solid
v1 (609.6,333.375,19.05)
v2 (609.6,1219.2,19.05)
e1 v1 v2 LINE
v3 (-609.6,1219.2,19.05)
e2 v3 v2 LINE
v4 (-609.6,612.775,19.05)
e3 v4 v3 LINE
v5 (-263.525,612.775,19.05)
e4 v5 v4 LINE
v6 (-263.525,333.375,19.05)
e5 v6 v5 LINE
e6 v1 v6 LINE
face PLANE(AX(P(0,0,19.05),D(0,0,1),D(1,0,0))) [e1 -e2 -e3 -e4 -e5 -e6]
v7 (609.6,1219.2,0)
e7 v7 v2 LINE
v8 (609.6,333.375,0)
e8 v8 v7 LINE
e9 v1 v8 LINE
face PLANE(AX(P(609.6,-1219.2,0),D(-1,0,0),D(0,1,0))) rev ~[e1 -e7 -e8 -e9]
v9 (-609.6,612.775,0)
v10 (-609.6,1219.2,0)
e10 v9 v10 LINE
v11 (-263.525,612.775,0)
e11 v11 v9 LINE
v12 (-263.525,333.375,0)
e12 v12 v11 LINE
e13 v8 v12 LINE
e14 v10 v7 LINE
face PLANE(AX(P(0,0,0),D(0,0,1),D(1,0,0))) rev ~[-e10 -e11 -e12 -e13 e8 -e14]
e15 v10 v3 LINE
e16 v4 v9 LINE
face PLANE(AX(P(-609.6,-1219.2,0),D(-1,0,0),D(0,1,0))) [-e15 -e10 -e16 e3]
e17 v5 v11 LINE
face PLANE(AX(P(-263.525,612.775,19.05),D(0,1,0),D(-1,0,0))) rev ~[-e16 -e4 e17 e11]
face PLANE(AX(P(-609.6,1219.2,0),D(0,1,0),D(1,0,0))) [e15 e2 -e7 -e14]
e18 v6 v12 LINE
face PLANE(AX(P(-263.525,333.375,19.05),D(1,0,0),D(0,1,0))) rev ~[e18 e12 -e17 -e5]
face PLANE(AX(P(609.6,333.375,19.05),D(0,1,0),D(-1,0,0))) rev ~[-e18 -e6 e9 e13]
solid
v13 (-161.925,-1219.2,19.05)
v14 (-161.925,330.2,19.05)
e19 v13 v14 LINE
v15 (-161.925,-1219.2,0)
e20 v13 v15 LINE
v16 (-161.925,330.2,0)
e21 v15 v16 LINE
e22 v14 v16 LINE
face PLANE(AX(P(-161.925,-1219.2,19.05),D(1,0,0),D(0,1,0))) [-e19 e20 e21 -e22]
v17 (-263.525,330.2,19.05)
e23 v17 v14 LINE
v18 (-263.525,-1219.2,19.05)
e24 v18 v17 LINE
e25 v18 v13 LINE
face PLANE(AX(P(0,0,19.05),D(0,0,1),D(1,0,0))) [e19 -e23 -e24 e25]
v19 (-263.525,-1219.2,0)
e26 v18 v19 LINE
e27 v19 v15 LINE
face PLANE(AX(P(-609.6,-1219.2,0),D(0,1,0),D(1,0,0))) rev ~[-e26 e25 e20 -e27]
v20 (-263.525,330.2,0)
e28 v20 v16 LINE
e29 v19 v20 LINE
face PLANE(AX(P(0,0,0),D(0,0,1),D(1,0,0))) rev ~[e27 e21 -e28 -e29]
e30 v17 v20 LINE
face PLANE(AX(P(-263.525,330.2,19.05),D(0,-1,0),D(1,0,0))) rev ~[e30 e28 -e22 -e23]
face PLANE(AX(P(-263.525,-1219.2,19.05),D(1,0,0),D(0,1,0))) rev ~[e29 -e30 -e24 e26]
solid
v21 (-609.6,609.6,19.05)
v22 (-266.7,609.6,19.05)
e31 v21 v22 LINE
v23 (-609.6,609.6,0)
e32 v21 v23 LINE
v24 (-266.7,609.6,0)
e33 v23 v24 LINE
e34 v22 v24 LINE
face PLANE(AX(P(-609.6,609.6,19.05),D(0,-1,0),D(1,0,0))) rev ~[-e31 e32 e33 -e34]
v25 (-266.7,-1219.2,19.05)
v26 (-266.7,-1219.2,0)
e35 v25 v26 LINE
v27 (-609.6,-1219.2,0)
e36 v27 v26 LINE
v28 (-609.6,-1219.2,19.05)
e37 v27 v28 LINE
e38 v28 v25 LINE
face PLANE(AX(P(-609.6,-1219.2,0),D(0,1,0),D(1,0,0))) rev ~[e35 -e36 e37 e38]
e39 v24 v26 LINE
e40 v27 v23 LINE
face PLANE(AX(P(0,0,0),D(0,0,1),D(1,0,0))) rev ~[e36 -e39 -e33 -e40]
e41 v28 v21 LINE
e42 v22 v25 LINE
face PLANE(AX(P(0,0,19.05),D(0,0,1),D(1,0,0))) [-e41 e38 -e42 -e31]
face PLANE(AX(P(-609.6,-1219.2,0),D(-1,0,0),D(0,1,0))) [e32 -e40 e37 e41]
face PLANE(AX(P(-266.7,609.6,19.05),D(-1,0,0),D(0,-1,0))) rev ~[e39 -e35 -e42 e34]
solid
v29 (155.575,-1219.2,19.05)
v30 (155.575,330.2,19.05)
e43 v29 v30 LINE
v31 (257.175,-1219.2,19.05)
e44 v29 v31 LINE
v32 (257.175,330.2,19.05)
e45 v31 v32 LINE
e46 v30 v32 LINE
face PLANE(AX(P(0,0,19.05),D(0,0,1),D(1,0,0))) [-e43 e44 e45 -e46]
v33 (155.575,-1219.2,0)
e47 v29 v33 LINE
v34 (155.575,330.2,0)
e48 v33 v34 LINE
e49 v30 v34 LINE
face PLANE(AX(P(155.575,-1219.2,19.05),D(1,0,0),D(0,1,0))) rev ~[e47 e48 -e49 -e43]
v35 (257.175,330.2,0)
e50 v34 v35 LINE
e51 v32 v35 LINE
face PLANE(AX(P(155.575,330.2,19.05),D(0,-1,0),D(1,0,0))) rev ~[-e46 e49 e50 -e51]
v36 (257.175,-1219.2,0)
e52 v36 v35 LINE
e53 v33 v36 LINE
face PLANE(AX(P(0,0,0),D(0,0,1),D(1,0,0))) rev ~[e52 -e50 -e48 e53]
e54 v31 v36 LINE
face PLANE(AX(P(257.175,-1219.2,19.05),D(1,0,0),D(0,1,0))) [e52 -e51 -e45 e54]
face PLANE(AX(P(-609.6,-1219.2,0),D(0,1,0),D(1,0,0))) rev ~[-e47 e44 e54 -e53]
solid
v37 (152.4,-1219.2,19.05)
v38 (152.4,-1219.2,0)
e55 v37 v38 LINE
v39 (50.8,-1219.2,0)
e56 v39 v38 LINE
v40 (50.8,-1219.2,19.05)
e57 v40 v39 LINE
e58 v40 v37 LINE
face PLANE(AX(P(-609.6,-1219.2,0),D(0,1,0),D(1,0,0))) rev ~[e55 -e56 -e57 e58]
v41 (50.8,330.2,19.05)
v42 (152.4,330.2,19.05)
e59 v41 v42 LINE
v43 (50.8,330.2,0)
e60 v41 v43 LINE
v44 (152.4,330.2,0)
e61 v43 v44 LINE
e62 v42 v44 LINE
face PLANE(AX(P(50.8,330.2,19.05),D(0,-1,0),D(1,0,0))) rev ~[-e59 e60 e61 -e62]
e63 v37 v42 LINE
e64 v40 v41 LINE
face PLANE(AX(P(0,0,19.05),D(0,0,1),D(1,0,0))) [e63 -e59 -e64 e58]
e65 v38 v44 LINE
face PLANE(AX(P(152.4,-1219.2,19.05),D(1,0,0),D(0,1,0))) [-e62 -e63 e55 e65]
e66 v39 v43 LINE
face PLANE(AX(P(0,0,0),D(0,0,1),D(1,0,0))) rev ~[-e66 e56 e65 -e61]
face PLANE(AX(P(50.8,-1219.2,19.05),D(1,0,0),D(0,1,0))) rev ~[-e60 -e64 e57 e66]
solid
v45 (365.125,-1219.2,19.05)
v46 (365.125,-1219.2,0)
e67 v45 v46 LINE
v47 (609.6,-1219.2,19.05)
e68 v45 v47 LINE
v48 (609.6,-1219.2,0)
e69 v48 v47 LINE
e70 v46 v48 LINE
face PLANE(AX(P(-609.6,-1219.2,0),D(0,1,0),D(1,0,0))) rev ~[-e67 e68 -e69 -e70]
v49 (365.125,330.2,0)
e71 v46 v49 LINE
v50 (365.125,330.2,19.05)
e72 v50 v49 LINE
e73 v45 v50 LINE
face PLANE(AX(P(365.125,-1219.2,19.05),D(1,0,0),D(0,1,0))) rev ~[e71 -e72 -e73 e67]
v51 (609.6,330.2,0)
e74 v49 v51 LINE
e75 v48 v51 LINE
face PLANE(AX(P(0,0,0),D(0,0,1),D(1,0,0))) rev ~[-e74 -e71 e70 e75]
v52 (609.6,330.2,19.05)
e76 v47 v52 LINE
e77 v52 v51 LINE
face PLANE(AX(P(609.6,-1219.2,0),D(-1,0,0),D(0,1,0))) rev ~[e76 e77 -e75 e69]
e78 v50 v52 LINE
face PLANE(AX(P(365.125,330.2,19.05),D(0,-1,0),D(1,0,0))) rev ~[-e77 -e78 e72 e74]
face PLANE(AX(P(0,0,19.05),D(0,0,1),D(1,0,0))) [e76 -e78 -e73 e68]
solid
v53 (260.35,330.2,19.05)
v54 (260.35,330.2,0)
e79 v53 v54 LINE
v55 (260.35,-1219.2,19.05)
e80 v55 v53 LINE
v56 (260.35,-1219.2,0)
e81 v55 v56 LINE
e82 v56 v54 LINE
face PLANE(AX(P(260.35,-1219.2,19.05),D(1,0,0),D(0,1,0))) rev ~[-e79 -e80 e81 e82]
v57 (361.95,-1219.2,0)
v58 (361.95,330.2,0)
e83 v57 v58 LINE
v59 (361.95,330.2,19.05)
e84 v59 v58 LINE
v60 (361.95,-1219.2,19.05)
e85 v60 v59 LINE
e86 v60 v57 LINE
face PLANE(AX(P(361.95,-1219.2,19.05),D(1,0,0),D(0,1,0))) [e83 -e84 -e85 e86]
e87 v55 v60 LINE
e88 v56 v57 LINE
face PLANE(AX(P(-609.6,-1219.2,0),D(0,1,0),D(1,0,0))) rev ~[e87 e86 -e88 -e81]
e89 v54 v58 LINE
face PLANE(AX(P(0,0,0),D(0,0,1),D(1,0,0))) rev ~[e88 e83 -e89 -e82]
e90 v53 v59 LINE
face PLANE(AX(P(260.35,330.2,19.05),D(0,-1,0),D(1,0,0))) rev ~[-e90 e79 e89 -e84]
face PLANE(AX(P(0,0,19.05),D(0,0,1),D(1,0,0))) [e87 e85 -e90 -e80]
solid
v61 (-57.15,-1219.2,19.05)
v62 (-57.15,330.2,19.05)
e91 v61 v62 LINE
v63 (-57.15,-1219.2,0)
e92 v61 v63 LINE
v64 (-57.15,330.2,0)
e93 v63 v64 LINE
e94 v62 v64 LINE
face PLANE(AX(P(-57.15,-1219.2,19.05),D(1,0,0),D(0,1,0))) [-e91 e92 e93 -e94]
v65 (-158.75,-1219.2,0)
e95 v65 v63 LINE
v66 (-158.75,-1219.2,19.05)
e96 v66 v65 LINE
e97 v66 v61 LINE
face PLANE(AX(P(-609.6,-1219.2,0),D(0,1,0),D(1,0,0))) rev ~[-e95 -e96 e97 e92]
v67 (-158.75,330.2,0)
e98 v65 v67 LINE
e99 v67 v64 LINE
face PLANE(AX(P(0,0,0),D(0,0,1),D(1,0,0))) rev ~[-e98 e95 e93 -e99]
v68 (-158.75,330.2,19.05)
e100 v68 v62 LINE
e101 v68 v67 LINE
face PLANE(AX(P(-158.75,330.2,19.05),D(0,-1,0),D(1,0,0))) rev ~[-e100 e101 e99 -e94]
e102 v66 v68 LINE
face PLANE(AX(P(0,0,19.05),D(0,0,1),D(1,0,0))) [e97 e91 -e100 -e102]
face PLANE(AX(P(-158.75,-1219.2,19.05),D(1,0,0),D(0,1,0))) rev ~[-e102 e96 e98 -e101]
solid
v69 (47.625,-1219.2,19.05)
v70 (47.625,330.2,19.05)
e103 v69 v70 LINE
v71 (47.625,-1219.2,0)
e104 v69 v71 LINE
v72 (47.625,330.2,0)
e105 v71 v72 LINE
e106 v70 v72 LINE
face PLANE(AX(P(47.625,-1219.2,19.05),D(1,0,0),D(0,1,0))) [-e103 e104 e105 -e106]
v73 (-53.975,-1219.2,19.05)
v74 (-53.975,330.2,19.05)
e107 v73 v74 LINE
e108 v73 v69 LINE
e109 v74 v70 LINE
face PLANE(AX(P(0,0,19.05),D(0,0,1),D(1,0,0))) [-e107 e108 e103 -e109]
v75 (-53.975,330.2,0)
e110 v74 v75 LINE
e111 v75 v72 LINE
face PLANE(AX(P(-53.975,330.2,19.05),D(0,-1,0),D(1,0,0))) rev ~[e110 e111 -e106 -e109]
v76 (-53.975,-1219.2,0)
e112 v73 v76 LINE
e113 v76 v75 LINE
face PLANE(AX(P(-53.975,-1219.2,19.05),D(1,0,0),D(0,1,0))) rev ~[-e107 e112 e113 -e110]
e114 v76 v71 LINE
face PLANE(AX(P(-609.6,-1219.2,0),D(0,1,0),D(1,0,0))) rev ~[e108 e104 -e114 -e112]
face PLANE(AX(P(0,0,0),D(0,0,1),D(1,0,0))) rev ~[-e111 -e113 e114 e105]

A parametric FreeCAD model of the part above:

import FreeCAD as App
import Part
import Sketcher

V = App.Vector
Q = App.Units.Quantity

doc = App.newDocument("Part")
params = doc.addObject("Spreadsheet::Sheet", "Params")
for row, (alias, value) in enumerate([
    ("sketch1_width", "48 in"),
    ("sketch1_height", "96 in"),
    ("pad1_length", "0.75 in"),
    ("sketch2_width", "4 in"),
    ("sketch2_height", "72 in"),
    ("sketch2_height2", "61 in"),
    ("sketch2_width2", "13.5 in"),
], start=1):
    params.set(f"A{row}", alias)
    params.set(f"B{row}", "=" + value)
    params.setAlias(f"B{row}", alias)

body = doc.addObject("PartDesign::Body", "Body")
body.AllowCompound = True

# Sketch on XY plane
sketch1 = body.newObject("Sketcher::SketchObject", "Sketch")
sketch1.AttachmentSupport = (doc.getObject("XY_Plane"), [""])
sketch1.MapMode = "FlatFace"
sketch1.addGeometry(Part.LineSegment(V(-610, 1219, 0), V(-610, -1219, 0)), False)
sketch1.addGeometry(Part.LineSegment(V(-610, -1219, 0), V(610, -1219, 0)), False)
sketch1.addGeometry(Part.LineSegment(V(610, -1219, 0), V(610, 1219, 0)), False)
sketch1.addGeometry(Part.LineSegment(V(610, 1219, 0), V(-610, 1219, 0)), False)
sketch1.addConstraint(Sketcher.Constraint("Coincident", 0, 2, 1, 1))
sketch1.addConstraint(Sketcher.Constraint("Coincident", 1, 2, 2, 1))
sketch1.addConstraint(Sketcher.Constraint("Coincident", 2, 2, 3, 1))
sketch1.addConstraint(Sketcher.Constraint("Coincident", 3, 2, 0, 1))
sketch1.addConstraint(Sketcher.Constraint("Vertical", 0))
sketch1.addConstraint(Sketcher.Constraint("Horizontal", 1))
sketch1.addConstraint(Sketcher.Constraint("Vertical", 2))
sketch1.addConstraint(Sketcher.Constraint("Horizontal", 3))
sketch1.addConstraint(Sketcher.Constraint("Symmetric", 0, 2, 2, 2, -1, 1))
sketch1.addConstraint(Sketcher.Constraint("DistanceX", 1, 1, 1, 2, Q("48 in")))
sketch1.addConstraint(Sketcher.Constraint("DistanceY", 0, 2, 0, 1, Q("96 in")))
sketch1.setExpression("Constraints[9]", "Params.sketch1_width")
sketch1.setExpression("Constraints[10]", "Params.sketch1_height")
pad1 = body.newObject("PartDesign::Pad", "Pad")
pad1.Profile = sketch1
pad1.setExpression("Length", "Params.pad1_length")

# Sketch on XY plane
sketch2 = body.newObject("Sketcher::SketchObject", "Sketch001")
sketch2.AttachmentSupport = (doc.getObject("XY_Plane"), [""])
sketch2.MapMode = "FlatFace"
sketch2.AttachmentOffset = App.Placement(V(0, 0, 0.75 * 25.4), App.Rotation())
sketch2.addGeometry(Part.LineSegment(V(-266.7, 609.6, 0), V(-266.7, -1219.2, 0)), False)
sketch2.addGeometry(Part.LineSegment(V(-266.7, -1219.2, 0), V(-263.5, -1219.2, 0)), False)
sketch2.addGeometry(Part.LineSegment(V(-263.5, -1219.2, 0), V(-263.5, 330.2, 0)), False)
sketch2.addGeometry(Part.LineSegment(V(-263.5, 330.2, 0), V(-161.9, 330.2, 0)), False)
sketch2.addGeometry(Part.LineSegment(V(-161.9, 330.2, 0), V(-161.9, -1219.2, 0)), False)
sketch2.addGeometry(Part.LineSegment(V(-161.9, -1219.2, 0), V(-158.8, -1219.2, 0)), False)
sketch2.addGeometry(Part.LineSegment(V(-158.8, -1219.2, 0), V(-158.8, 330.2, 0)), False)
sketch2.addGeometry(Part.LineSegment(V(-158.8, 330.2, 0), V(-57.1, 330.2, 0)), False)
sketch2.addGeometry(Part.LineSegment(V(-57.1, 330.2, 0), V(-57.1, -1219.2, 0)), False)
sketch2.addGeometry(Part.LineSegment(V(-57.1, -1219.2, 0), V(-54, -1219.2, 0)), False)
sketch2.addGeometry(Part.LineSegment(V(-54, -1219.2, 0), V(-54, 330.2, 0)), False)
sketch2.addGeometry(Part.LineSegment(V(-54, 330.2, 0), V(47.6, 330.2, 0)), False)
sketch2.addGeometry(Part.LineSegment(V(47.6, 330.2, 0), V(47.6, -1219.2, 0)), False)
sketch2.addGeometry(Part.LineSegment(V(47.6, -1219.2, 0), V(50.8, -1219.2, 0)), False)
sketch2.addGeometry(Part.LineSegment(V(50.8, -1219.2, 0), V(50.8, 330.2, 0)), False)
sketch2.addGeometry(Part.LineSegment(V(50.8, 330.2, 0), V(152.4, 330.2, 0)), False)
sketch2.addGeometry(Part.LineSegment(V(152.4, 330.2, 0), V(152.4, -1219.2, 0)), False)
sketch2.addGeometry(Part.LineSegment(V(152.4, -1219.2, 0), V(155.6, -1219.2, 0)), False)
sketch2.addGeometry(Part.LineSegment(V(155.6, -1219.2, 0), V(155.6, 330.2, 0)), False)
sketch2.addGeometry(Part.LineSegment(V(155.6, 330.2, 0), V(257.2, 330.2, 0)), False)
sketch2.addGeometry(Part.LineSegment(V(257.2, 330.2, 0), V(257.2, -1219.2, 0)), False)
sketch2.addGeometry(Part.LineSegment(V(257.2, -1219.2, 0), V(260.4, -1219.2, 0)), False)
sketch2.addGeometry(Part.LineSegment(V(260.4, -1219.2, 0), V(260.4, 330.2, 0)), False)
sketch2.addGeometry(Part.LineSegment(V(260.4, 330.2, 0), V(361.9, 330.2, 0)), False)
sketch2.addGeometry(Part.LineSegment(V(361.9, 330.2, 0), V(361.9, -1219.2, 0)), False)
sketch2.addGeometry(Part.LineSegment(V(361.9, -1219.2, 0), V(365.1, -1219.2, 0)), False)
sketch2.addGeometry(Part.LineSegment(V(365.1, -1219.2, 0), V(365.1, 330.2, 0)), False)
sketch2.addGeometry(Part.LineSegment(V(365.1, 330.2, 0), V(609.6, 330.2, 0)), False)
sketch2.addGeometry(Part.LineSegment(V(609.6, 330.2, 0), V(609.6, 333.4, 0)), False)
sketch2.addGeometry(Part.LineSegment(V(609.6, 333.4, 0), V(-263.5, 333.4, 0)), False)
sketch2.addGeometry(Part.LineSegment(V(-263.5, 333.4, 0), V(-263.5, 612.8, 0)), False)
sketch2.addGeometry(Part.LineSegment(V(-263.5, 612.8, 0), V(-609.6, 612.8, 0)), False)
sketch2.addGeometry(Part.LineSegment(V(-609.6, 612.8, 0), V(-609.6, 609.6, 0)), False)
sketch2.addGeometry(Part.LineSegment(V(-609.6, 609.6, 0), V(-266.7, 609.6, 0)), False)
sketch2.addConstraint(Sketcher.Constraint("Coincident", 0, 2, 1, 1))
sketch2.addConstraint(Sketcher.Constraint("Coincident", 1, 2, 2, 1))
sketch2.addConstraint(Sketcher.Constraint("Coincident", 2, 2, 3, 1))
sketch2.addConstraint(Sketcher.Constraint("Coincident", 3, 2, 4, 1))
sketch2.addConstraint(Sketcher.Constraint("Coincident", 4, 2, 5, 1))
sketch2.addConstraint(Sketcher.Constraint("Coincident", 5, 2, 6, 1))
sketch2.addConstraint(Sketcher.Constraint("Coincident", 6, 2, 7, 1))
sketch2.addConstraint(Sketcher.Constraint("Coincident", 7, 2, 8, 1))
sketch2.addConstraint(Sketcher.Constraint("Coincident", 8, 2, 9, 1))
sketch2.addConstraint(Sketcher.Constraint("Coincident", 9, 2, 10, 1))
sketch2.addConstraint(Sketcher.Constraint("Coincident", 10, 2, 11, 1))
sketch2.addConstraint(Sketcher.Constraint("Coincident", 11, 2, 12, 1))
sketch2.addConstraint(Sketcher.Constraint("Coincident", 12, 2, 13, 1))
sketch2.addConstraint(Sketcher.Constraint("Coincident", 13, 2, 14, 1))
sketch2.addConstraint(Sketcher.Constraint("Coincident", 14, 2, 15, 1))
sketch2.addConstraint(Sketcher.Constraint("Coincident", 15, 2, 16, 1))
sketch2.addConstraint(Sketcher.Constraint("Coincident", 16, 2, 17, 1))
sketch2.addConstraint(Sketcher.Constraint("Coincident", 17, 2, 18, 1))
sketch2.addConstraint(Sketcher.Constraint("Coincident", 18, 2, 19, 1))
sketch2.addConstraint(Sketcher.Constraint("Coincident", 19, 2, 20, 1))
sketch2.addConstraint(Sketcher.Constraint("Coincident", 20, 2, 21, 1))
sketch2.addConstraint(Sketcher.Constraint("Coincident", 21, 2, 22, 1))
sketch2.addConstraint(Sketcher.Constraint("Coincident", 22, 2, 23, 1))
sketch2.addConstraint(Sketcher.Constraint("Coincident", 23, 2, 24, 1))
sketch2.addConstraint(Sketcher.Constraint("Coincident", 24, 2, 25, 1))
sketch2.addConstraint(Sketcher.Constraint("Coincident", 25, 2, 26, 1))
sketch2.addConstraint(Sketcher.Constraint("Coincident", 26, 2, 27, 1))
sketch2.addConstraint(Sketcher.Constraint("Coincident", 27, 2, 28, 1))
sketch2.addConstraint(Sketcher.Constraint("Coincident", 28, 2, 29, 1))
sketch2.addConstraint(Sketcher.Constraint("Coincident", 29, 2, 30, 1))
sketch2.addConstraint(Sketcher.Constraint("Coincident", 30, 2, 31, 1))
sketch2.addConstraint(Sketcher.Constraint("Coincident", 31, 2, 32, 1))
sketch2.addConstraint(Sketcher.Constraint("Coincident", 32, 2, 33, 1))
sketch2.addConstraint(Sketcher.Constraint("Coincident", 33, 2, 0, 1))
sketch2.addConstraint(Sketcher.Constraint("Vertical", 0))
sketch2.addConstraint(Sketcher.Constraint("Horizontal", 1))
sketch2.addConstraint(Sketcher.Constraint("Vertical", 2))
sketch2.addConstraint(Sketcher.Constraint("Horizontal", 3))
sketch2.addConstraint(Sketcher.Constraint("Vertical", 4))
sketch2.addConstraint(Sketcher.Constraint("Horizontal", 5))
sketch2.addConstraint(Sketcher.Constraint("Vertical", 6))
sketch2.addConstraint(Sketcher.Constraint("Horizontal", 7))
sketch2.addConstraint(Sketcher.Constraint("Vertical", 8))
sketch2.addConstraint(Sketcher.Constraint("Horizontal", 9))
sketch2.addConstraint(Sketcher.Constraint("Vertical", 10))
sketch2.addConstraint(Sketcher.Constraint("Horizontal", 11))
sketch2.addConstraint(Sketcher.Constraint("Vertical", 12))
sketch2.addConstraint(Sketcher.Constraint("Horizontal", 13))
sketch2.addConstraint(Sketcher.Constraint("Vertical", 14))
sketch2.addConstraint(Sketcher.Constraint("Horizontal", 15))
sketch2.addConstraint(Sketcher.Constraint("Vertical", 16))
sketch2.addConstraint(Sketcher.Constraint("Horizontal", 17))
sketch2.addConstraint(Sketcher.Constraint("Vertical", 18))
sketch2.addConstraint(Sketcher.Constraint("Horizontal", 19))
sketch2.addConstraint(Sketcher.Constraint("Vertical", 20))
sketch2.addConstraint(Sketcher.Constraint("Horizontal", 21))
sketch2.addConstraint(Sketcher.Constraint("Vertical", 22))
sketch2.addConstraint(Sketcher.Constraint("Horizontal", 23))
sketch2.addConstraint(Sketcher.Constraint("Vertical", 24))
sketch2.addConstraint(Sketcher.Constraint("Horizontal", 25))
sketch2.addConstraint(Sketcher.Constraint("Vertical", 26))
sketch2.addConstraint(Sketcher.Constraint("Horizontal", 27))
sketch2.addConstraint(Sketcher.Constraint("Vertical", 28))
sketch2.addConstraint(Sketcher.Constraint("Horizontal", 29))
sketch2.addConstraint(Sketcher.Constraint("Vertical", 30))
sketch2.addConstraint(Sketcher.Constraint("Horizontal", 31))
sketch2.addConstraint(Sketcher.Constraint("Vertical", 32))
sketch2.addConstraint(Sketcher.Constraint("Horizontal", 33))
sketch2.addConstraint(Sketcher.Constraint("Horizontal", 1, 2, 4, 2))
sketch2.addConstraint(Sketcher.Constraint("Horizontal", 3, 2, 6, 2))
sketch2.addConstraint(Sketcher.Constraint("Horizontal", 5, 2, 8, 2))
sketch2.addConstraint(Sketcher.Constraint("Horizontal", 7, 2, 10, 2))
sketch2.addConstraint(Sketcher.Constraint("Horizontal", 9, 2, 12, 2))
sketch2.addConstraint(Sketcher.Constraint("Horizontal", 11, 2, 14, 2))
sketch2.addConstraint(Sketcher.Constraint("Horizontal", 13, 2, 16, 2))
sketch2.addConstraint(Sketcher.Constraint("Horizontal", 15, 2, 18, 2))
sketch2.addConstraint(Sketcher.Constraint("Horizontal", 17, 2, 20, 2))
sketch2.addConstraint(Sketcher.Constraint("Horizontal", 19, 2, 22, 2))
sketch2.addConstraint(Sketcher.Constraint("Horizontal", 21, 2, 24, 2))
sketch2.addConstraint(Sketcher.Constraint("Horizontal", 23, 2, 26, 2))
sketch2.addConstraint(Sketcher.Constraint("Vertical", 2, 2, 29, 2))
sketch2.addConstraint(Sketcher.Constraint("Equal", 1, 5))
sketch2.addConstraint(Sketcher.Constraint("Equal", 3, 7))
sketch2.addConstraint(Sketcher.Constraint("Equal", 5, 9))
sketch2.addConstraint(Sketcher.Constraint("Equal", 7, 11))
sketch2.addConstraint(Sketcher.Constraint("Equal", 9, 13))
sketch2.addConstraint(Sketcher.Constraint("Equal", 11, 15))
sketch2.addConstraint(Sketcher.Constraint("Equal", 13, 17))
sketch2.addConstraint(Sketcher.Constraint("Equal", 15, 19))
sketch2.addConstraint(Sketcher.Constraint("Equal", 17, 21))
sketch2.addConstraint(Sketcher.Constraint("Equal", 19, 23))
sketch2.addConstraint(Sketcher.Constraint("Equal", 21, 25))
sketch2.addConstraint(Sketcher.Constraint("Equal", 25, 28))
sketch2.addConstraint(Sketcher.Constraint("Equal", 28, 32))
sketch2.addConstraint(Sketcher.Constraint("DistanceX", 3, 1, 3, 2, Q("4 in")))
sketch2.addConstraint(Sketcher.Constraint("DistanceY", 0, 2, 0, 1, Q("72 in")))
sketch2.addConstraint(Sketcher.Constraint("DistanceY", 2, 1, 2, 2, Q("61 in")))
sketch2.addConstraint(Sketcher.Constraint("DistanceX", 33, 1, 33, 2, Q("13.5 in")))
sketch2.addConstraint(Sketcher.Constraint("DistanceY", 0, 2, -1, 1, Q("48 in")))
sketch2.addConstraint(Sketcher.Constraint("DistanceX", -1, 1, 13, 2, Q("2 in")))
sketch2.addConstraint(Sketcher.Constraint("DistanceX", -1, 1, 27, 2, Q("24 in")))
sketch2.addConstraint(Sketcher.Constraint("DistanceX", 31, 2, -1, 1, Q("24 in")))
sketch2.setExpression("Constraints[94]", "Params.sketch2_width")
sketch2.setExpression("Constraints[95]", "Params.sketch2_height")
sketch2.setExpression("Constraints[96]", "Params.sketch2_height2")
sketch2.setExpression("Constraints[97]", "Params.sketch2_width2")
pocket1 = body.newObject("PartDesign::Pocket", "Pocket")
pocket1.Profile = sketch2
pocket1.Type = "ThroughAll"

doc.recompute()
